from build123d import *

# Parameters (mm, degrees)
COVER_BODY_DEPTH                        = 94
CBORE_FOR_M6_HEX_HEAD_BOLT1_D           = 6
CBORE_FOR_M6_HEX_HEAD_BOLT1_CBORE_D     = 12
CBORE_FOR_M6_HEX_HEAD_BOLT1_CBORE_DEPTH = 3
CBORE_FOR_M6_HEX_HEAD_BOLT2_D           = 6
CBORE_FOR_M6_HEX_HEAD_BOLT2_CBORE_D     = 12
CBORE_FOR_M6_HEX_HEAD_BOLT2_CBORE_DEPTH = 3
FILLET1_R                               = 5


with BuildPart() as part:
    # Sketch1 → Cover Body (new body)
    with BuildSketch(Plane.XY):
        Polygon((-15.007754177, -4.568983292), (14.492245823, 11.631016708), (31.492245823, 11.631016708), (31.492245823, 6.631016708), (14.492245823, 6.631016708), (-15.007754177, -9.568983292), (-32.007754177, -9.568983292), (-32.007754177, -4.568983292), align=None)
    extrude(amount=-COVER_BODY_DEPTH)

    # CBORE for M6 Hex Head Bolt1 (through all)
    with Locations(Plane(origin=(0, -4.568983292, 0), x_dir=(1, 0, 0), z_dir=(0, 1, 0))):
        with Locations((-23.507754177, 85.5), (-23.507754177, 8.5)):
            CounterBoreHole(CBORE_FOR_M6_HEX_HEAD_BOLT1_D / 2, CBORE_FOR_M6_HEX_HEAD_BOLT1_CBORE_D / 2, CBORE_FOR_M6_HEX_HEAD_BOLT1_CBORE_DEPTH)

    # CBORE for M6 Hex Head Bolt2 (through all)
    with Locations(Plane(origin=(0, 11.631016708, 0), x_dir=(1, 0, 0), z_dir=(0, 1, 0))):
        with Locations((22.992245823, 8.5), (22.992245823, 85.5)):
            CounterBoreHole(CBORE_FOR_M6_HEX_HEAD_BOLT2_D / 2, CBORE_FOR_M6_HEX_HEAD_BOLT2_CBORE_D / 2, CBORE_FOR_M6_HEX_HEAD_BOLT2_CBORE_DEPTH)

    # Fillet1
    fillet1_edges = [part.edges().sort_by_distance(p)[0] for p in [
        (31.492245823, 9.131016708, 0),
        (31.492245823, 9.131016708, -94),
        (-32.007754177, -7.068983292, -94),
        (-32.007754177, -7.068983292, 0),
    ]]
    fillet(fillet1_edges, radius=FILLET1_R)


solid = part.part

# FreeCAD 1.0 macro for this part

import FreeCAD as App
import Part
import Sketcher


def edges_at(feature, points):
    """Names of the edges that pass closest to the given points."""
    edges = feature.Shape.Edges
    near = lambda p: min(range(len(edges)), key=lambda i: edges[i].distToShape(Part.Vertex(*p))[0])
    return sorted({f"Edge{near(p) + 1}" for p in points})


def add_polygon(sketch, points):
    """Adds a closed chain of lines whose ends are joined by coincident constraints."""
    first, n = sketch.GeometryCount, len(points)
    for a, b in zip(points, points[1:] + points[:1]):
        sketch.addGeometry(Part.LineSegment(App.Vector(*a, 0), App.Vector(*b, 0)), False)
    for i in range(n):
        sketch.addConstraint(Sketcher.Constraint("Coincident", first + i, 2, first + (i + 1) % n, 1))

doc = App.newDocument("Part")
body = doc.addObject("PartDesign::Body", "Body")

sketch1 = body.newObject("Sketcher::SketchObject", "Sketch")
sketch1.AttachmentSupport = (doc.getObject("XY_Plane"), [""])
sketch1.MapMode = "FlatFace"
add_polygon(sketch1, [(14, 12), (-15, -5), (-32, -5), (-32, -10), (-15, -10), (14, 7), (31, 7), (31, 12)])
sketch1.addConstraint([
    Sketcher.Constraint("Horizontal", 1),
    Sketcher.Constraint("Vertical", 2),
    Sketcher.Constraint("Horizontal", 3),
    Sketcher.Constraint("Horizontal", 5),
    Sketcher.Constraint("Vertical", 6),
    Sketcher.Constraint("Horizontal", 7),
    Sketcher.Constraint("Parallel", 0, 4),
    Sketcher.Constraint("Vertical", 0, 2, 3, 2),
    Sketcher.Constraint("Vertical", 4, 2, 7, 2),
    Sketcher.Constraint("Equal", 3, 5),
    Sketcher.Constraint("DistanceX", 1, 2, 1, 1, 17.0),
    Sketcher.Constraint("DistanceY", 2, 2, 2, 1, 5.0),
    Sketcher.Constraint("DistanceX", 0, 2, 4, 2, 29.5),
    Sketcher.Constraint("DistanceY", 0, 2, 4, 2, 11.2),
    Sketcher.Constraint("DistanceX", 0, 2, -1, 1, 15.007754),
    Sketcher.Constraint("DistanceY", 0, 2, -1, 1, 4.568983),
])
pad1 = body.newObject("PartDesign::Pad", "Pad")
pad1.Profile = sketch1
pad1.Length = 94
pad1.Reversed = True

sketch2 = body.newObject("Sketcher::SketchObject", "Sketch001")
sketch2.AttachmentSupport = (doc.getObject("XZ_Plane"), [""])
sketch2.MapMode = "FlatFace"
sketch2.AttachmentOffset = App.Placement(App.Vector(0, 0, 4.568983), App.Rotation())
sketch2.addGeometry([
    Part.Circle(App.Vector(-23.5, -85.5, 0), App.Vector(0, 0, 1), 3),
    Part.Circle(App.Vector(-23.5, -8.5, 0), App.Vector(0, 0, 1), 3),
], False)
sketch2.addConstraint([
    Sketcher.Constraint("Equal", 0, 1),
    Sketcher.Constraint("Vertical", 0, 3, 1, 3),
    Sketcher.Constraint("Diameter", 0, 6.0),
    Sketcher.Constraint("DistanceY", 0, 3, 1, 3, 77.0),
    Sketcher.Constraint("DistanceY", 0, 3, -1, 1, 85.5),
    Sketcher.Constraint("DistanceX", 0, 3, -1, 1, 23.507754),
])
doc.recompute()
hole = body.newObject("PartDesign::Hole", "Hole")
hole.Profile = sketch2
hole.ThreadType = "None"
hole.Diameter = 6
hole.DepthType = "ThroughAll"
hole.HoleCutType = "Counterbore"
hole.HoleCutDiameter = 12
hole.HoleCutDepth = 3
hole.Reversed = True

sketch3 = body.newObject("Sketcher::SketchObject", "Sketch002")
sketch3.AttachmentSupport = (doc.getObject("XZ_Plane"), [""])
sketch3.MapMode = "FlatFace"
sketch3.AttachmentOffset = App.Placement(App.Vector(0, 0, -11.631017), App.Rotation())
sketch3.addGeometry([
    Part.Circle(App.Vector(23, -8.5, 0), App.Vector(0, 0, 1), 3),
    Part.Circle(App.Vector(23, -85.5, 0), App.Vector(0, 0, 1), 3),
], False)
sketch3.addConstraint([
    Sketcher.Constraint("Equal", 0, 1),
    Sketcher.Constraint("Vertical", 0, 3, 1, 3),
    Sketcher.Constraint("Diameter", 0, 6.0),
    Sketcher.Constraint("DistanceY", 1, 3, 0, 3, 77.0),
    Sketcher.Constraint("DistanceY", 0, 3, -1, 1, 8.5),
    Sketcher.Constraint("DistanceX", -1, 1, 0, 3, 22.992246),
])
doc.recompute()
hole2 = body.newObject("PartDesign::Hole", "Hole001")
hole2.Profile = sketch3
hole2.ThreadType = "None"
hole2.Diameter = 6
hole2.DepthType = "ThroughAll"
hole2.HoleCutType = "Counterbore"
hole2.HoleCutDiameter = 12
hole2.HoleCutDepth = 3
hole2.Reversed = True
doc.recompute()

fillet = body.newObject("PartDesign::Fillet", "Fillet")
fillet.Base = (hole2, edges_at(hole2, [
    (31.492, 9.131, 0),
    (31.492, 9.131, -94),
    (-32.008, -7.069, -94),
    (-32.008, -7.069, 0),
]))
fillet.Radius = 5

doc.recompute()
